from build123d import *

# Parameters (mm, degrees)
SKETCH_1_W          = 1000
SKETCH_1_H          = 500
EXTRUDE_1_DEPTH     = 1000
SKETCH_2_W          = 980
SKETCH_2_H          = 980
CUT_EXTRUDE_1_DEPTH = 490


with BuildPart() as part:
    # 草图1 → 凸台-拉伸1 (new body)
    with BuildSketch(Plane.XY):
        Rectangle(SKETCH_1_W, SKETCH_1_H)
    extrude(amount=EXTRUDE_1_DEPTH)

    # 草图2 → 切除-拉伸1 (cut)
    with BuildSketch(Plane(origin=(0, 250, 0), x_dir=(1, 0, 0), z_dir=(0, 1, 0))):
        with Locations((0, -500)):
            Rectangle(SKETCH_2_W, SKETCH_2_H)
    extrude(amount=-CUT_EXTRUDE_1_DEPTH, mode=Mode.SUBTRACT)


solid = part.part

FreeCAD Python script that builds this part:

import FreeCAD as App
import Part
import Sketcher
Q = App.Units.Quantity

doc = App.newDocument("Part")
body = doc.addObject("PartDesign::Body", "Body")

sketch1 = body.newObject("Sketcher::SketchObject", "Sketch")
sketch1.AttachmentSupport = (doc.getObject("XY_Plane"), [""])
sketch1.MapMode = "FlatFace"
sketch1.addGeometry([
    Part.LineSegment(App.Vector(-500, 250, 0), App.Vector(-500, -250, 0)),
    Part.LineSegment(App.Vector(-500, -250, 0), App.Vector(500, -250, 0)),
    Part.LineSegment(App.Vector(500, -250, 0), App.Vector(500, 250, 0)),
    Part.LineSegment(App.Vector(500, 250, 0), App.Vector(-500, 250, 0)),
], False)
sketch1.addConstraint([
    Sketcher.Constraint("Coincident", 0, 2, 1, 1),
    Sketcher.Constraint("Coincident", 1, 2, 2, 1),
    Sketcher.Constraint("Coincident", 2, 2, 3, 1),
    Sketcher.Constraint("Coincident", 3, 2, 0, 1),
    Sketcher.Constraint("Vertical", 0),
    Sketcher.Constraint("Horizontal", 1),
    Sketcher.Constraint("Vertical", 2),
    Sketcher.Constraint("Horizontal", 3),
    Sketcher.Constraint("Symmetric", 0, 2, 2, 2, -1, 1),
    Sketcher.Constraint("DistanceX", 1, 1, 1, 2, Q("1000 mm")),
    Sketcher.Constraint("DistanceY", 0, 2, 0, 1, Q("500 mm")),
])
pad1 = body.newObject("PartDesign::Pad", "Pad")
pad1.Profile = sketch1
pad1.Length = 1000

sketch2 = body.newObject("Sketcher::SketchObject", "Sketch001")
sketch2.AttachmentSupport = (doc.getObject("XZ_Plane"), [""])
sketch2.MapMode = "FlatFace"
sketch2.AttachmentOffset = App.Placement(App.Vector(0, 0, -250), App.Rotation())
sketch2.addGeometry([
    Part.LineSegment(App.Vector(-490, 10, 0), App.Vector(-490, 990, 0)),
    Part.LineSegment(App.Vector(-490, 990, 0), App.Vector(490, 990, 0)),
    Part.LineSegment(App.Vector(490, 990, 0), App.Vector(490, 10, 0)),
    Part.LineSegment(App.Vector(490, 10, 0), App.Vector(-490, 10, 0)),
], False)
sketch2.addConstraint([
    Sketcher.Constraint("Coincident", 0, 2, 1, 1),
    Sketcher.Constraint("Coincident", 1, 2, 2, 1),
    Sketcher.Constraint("Coincident", 2, 2, 3, 1),
    Sketcher.Constraint("Coincident", 3, 2, 0, 1),
    Sketcher.Constraint("Vertical", 0),
    Sketcher.Constraint("Horizontal", 1),
    Sketcher.Constraint("Vertical", 2),
    Sketcher.Constraint("Horizontal", 3),
    Sketcher.Constraint("Equal", 3, 0),
    Sketcher.Constraint("DistanceX", 1, 1, 1, 2, Q("980 mm")),
    Sketcher.Constraint("DistanceX", 0, 2, -1, 1, Q("490 mm")),
    Sketcher.Constraint("DistanceY", -1, 1, 0, 2, Q("990 mm")),
])
pocket1 = body.newObject("PartDesign::Pocket", "Pocket")
pocket1.Profile = sketch2
pocket1.Length = 490
pocket1.Reversed = True

doc.recompute()
